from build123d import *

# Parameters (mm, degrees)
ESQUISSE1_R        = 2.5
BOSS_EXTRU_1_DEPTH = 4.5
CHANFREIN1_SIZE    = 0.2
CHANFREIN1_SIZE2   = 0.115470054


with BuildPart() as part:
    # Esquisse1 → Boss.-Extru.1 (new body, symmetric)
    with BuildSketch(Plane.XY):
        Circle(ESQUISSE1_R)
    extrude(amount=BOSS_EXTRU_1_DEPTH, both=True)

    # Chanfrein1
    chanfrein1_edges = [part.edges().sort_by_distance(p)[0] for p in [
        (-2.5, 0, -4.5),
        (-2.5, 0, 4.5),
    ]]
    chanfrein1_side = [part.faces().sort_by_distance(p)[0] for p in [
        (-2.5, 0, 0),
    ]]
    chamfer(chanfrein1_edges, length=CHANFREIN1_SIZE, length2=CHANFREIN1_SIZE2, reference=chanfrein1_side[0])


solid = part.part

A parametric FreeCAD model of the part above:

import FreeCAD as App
import Part
import Sketcher
from FreeCAD import Vector
Q = App.Units.Quantity


def edges_at(feature, points):
    """Names of the edges that pass closest to the given points."""
    edges = feature.Shape.Edges
    near = lambda p: min(range(len(edges)), key=lambda i: edges[i].distToShape(Part.Vertex(*p))[0])
    return sorted({f"Edge{near(p) + 1}" for p in points})

doc = App.newDocument("Part")
body = doc.addObject("PartDesign::Body", "Body")

# Sketch on XY plane
sketch1 = doc.addObject("Sketcher::SketchObject", "Sketch")
body.addObject(sketch1)
sketch1.AttachmentSupport = (doc.XY_Plane, [""])
sketch1.MapMode = "FlatFace"
sketch1.addGeometry(Part.Circle(Vector(0, 0, 0), Vector(0, 0, 1), 2.5), False)
sketch1.addConstraint(Sketcher.Constraint("Coincident", 0, 3, -1, 1))
sketch1.addConstraint(Sketcher.Constraint("Diameter", 0, Q("5 mm")))
pad1 = doc.addObject("PartDesign::Pad", "Pad")
body.addObject(pad1)
pad1.Profile = sketch1
pad1.Length = 9
pad1.Midplane = True
doc.recompute()

chamfer = doc.addObject("PartDesign::Chamfer", "Chamfer")
body.addObject(chamfer)
chamfer.Base = (pad1, edges_at(pad1, [(-2.5, 0, -4.5), (-2.5, 0, 4.5)]))
chamfer.ChamferType = "Two distances"
chamfer.Size = 0.2
chamfer.Size2 = 0.11547

doc.recompute()
